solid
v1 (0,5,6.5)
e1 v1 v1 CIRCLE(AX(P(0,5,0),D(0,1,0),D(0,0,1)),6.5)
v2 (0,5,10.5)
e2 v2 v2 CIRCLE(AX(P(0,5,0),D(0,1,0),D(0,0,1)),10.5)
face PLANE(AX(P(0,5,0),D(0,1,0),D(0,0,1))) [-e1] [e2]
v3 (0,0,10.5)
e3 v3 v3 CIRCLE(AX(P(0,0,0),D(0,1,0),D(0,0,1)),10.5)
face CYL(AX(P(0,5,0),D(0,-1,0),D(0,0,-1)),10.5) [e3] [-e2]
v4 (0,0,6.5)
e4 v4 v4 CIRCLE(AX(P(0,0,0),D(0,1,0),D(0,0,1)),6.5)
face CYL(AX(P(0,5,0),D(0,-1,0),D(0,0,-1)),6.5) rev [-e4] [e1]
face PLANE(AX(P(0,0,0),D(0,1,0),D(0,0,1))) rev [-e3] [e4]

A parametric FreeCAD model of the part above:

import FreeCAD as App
import Part
import Sketcher
from FreeCAD import Vector
Q = App.Units.Quantity

doc = App.newDocument("Part")
body = doc.addObject("PartDesign::Body", "Body")

sketch1 = doc.addObject("Sketcher::SketchObject", "Sketch")
body.addObject(sketch1)
sketch1.AttachmentSupport = (doc.XZ_Plane, [""])
sketch1.MapMode = "FlatFace"
sketch1.addGeometry(Part.Circle(Vector(0, 0, 0), Vector(0, 0, 1), 10), False)
sketch1.addGeometry(Part.Circle(Vector(0, 0, 0), Vector(0, 0, 1), 6), False)
sketch1.addConstraint(Sketcher.Constraint("Coincident", 0, 3, -1, 1))
sketch1.addConstraint(Sketcher.Constraint("Coincident", 1, 3, -1, 1))
sketch1.addConstraint(Sketcher.Constraint("Diameter", 0, Q("21 mm")))
sketch1.addConstraint(Sketcher.Constraint("Diameter", 1, Q("13 mm")))
pad1 = doc.addObject("PartDesign::Pad", "Pad")
body.addObject(pad1)
pad1.Profile = sketch1
pad1.Length = 5
pad1.Reversed = True

doc.recompute()
